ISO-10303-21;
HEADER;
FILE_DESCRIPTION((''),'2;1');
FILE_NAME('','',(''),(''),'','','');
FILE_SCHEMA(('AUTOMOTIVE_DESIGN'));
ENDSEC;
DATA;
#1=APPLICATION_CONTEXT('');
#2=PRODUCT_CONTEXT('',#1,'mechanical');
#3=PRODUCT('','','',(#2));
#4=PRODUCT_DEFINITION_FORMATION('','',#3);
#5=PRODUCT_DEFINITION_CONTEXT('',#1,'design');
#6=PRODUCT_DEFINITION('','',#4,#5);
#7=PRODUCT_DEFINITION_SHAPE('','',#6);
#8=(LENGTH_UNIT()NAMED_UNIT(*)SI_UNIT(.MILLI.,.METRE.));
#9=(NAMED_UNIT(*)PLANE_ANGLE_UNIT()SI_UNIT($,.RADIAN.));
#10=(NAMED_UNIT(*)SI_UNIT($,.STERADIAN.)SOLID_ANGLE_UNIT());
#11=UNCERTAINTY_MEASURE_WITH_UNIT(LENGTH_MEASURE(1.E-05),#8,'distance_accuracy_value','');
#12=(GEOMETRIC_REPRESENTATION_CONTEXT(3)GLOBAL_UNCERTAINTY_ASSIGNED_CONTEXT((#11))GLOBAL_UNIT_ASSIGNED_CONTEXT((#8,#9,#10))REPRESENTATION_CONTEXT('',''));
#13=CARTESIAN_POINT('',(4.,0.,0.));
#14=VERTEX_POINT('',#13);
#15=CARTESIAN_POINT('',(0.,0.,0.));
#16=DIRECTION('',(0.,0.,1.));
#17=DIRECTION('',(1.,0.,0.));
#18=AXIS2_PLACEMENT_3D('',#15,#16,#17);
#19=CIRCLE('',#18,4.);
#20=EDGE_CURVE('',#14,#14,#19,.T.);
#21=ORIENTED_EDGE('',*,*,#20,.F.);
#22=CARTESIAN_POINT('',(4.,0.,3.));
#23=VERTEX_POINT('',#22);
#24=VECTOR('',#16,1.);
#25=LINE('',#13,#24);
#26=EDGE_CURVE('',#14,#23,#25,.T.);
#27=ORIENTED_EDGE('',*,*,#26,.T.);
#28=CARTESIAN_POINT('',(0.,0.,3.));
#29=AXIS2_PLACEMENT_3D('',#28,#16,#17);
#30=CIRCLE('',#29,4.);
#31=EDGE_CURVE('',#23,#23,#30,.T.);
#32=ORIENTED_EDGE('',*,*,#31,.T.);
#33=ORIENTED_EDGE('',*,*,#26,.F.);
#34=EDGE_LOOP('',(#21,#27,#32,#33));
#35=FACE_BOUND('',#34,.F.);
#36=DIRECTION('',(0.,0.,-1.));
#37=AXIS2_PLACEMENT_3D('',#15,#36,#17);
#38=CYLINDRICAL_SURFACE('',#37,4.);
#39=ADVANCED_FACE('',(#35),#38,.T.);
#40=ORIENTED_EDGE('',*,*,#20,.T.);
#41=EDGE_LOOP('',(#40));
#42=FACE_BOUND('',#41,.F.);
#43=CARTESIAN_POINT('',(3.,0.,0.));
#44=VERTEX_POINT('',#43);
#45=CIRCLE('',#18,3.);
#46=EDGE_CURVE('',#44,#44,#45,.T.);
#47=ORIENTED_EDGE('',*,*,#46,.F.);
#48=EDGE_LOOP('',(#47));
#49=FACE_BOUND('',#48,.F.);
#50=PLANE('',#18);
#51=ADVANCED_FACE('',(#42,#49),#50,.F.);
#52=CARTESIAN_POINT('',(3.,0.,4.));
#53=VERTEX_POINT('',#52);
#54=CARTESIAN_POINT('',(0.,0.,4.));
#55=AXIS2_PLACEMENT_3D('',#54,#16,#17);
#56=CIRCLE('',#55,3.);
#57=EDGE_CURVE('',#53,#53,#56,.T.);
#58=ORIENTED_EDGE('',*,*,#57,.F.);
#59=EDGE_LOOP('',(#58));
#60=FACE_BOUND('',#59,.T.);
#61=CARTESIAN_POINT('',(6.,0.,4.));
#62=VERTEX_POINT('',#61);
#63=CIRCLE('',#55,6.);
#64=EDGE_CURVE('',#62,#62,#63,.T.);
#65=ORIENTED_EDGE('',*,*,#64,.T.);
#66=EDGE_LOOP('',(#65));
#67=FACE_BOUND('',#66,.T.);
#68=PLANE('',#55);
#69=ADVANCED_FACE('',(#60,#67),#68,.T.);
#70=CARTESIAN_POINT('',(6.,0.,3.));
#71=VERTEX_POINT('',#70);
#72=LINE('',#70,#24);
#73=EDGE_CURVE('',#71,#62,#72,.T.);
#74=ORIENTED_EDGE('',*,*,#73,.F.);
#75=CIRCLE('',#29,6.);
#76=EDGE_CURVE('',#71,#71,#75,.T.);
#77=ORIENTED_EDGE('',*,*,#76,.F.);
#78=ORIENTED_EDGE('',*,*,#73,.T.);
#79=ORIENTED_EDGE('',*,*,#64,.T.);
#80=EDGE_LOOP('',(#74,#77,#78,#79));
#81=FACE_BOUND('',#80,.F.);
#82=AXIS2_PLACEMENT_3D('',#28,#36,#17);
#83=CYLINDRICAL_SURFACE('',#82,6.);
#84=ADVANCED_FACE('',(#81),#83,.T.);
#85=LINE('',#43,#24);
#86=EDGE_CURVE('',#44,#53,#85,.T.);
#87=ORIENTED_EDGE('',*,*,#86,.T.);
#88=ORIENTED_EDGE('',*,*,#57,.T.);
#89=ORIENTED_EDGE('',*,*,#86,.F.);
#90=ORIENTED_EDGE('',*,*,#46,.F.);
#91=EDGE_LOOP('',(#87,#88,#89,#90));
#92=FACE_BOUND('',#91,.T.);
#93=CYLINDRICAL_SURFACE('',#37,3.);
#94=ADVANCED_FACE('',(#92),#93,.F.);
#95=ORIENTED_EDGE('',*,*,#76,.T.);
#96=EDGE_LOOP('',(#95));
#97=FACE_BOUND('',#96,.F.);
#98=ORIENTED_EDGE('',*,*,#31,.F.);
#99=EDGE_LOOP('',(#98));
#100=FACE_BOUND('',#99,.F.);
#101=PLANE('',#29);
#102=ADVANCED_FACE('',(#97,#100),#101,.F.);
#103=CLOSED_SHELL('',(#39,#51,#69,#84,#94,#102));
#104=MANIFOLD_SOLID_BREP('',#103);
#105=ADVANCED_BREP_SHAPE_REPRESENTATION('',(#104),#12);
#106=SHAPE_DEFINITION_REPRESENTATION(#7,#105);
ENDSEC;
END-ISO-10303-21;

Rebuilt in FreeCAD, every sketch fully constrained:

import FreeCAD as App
import Part
import Sketcher
Q = App.Units.Quantity

doc = App.newDocument("Part")
body = doc.addObject("PartDesign::Body", "Body")

# Sketch on XY plane
sketch1 = body.newObject("Sketcher::SketchObject", "Sketch")
sketch1.AttachmentSupport = (doc.getObject("XY_Plane"), [""])
sketch1.MapMode = "FlatFace"
sketch1.addGeometry(Part.Circle(App.Vector(0, 0, 0), App.Vector(0, 0, 1), 4), False)
sketch1.addGeometry(Part.Circle(App.Vector(0, 0, 0), App.Vector(0, 0, 1), 3), False)
sketch1.addConstraint(Sketcher.Constraint("Coincident", 0, 3, -1, 1))
sketch1.addConstraint(Sketcher.Constraint("Coincident", 1, 3, -1, 1))
sketch1.addConstraint(Sketcher.Constraint("Diameter", 0, Q("8 mm")))
sketch1.addConstraint(Sketcher.Constraint("Diameter", 1, Q("6 mm")))
pad1 = body.newObject("PartDesign::Pad", "Pad")
pad1.Profile = sketch1
pad1.Length = 3

# Sketch on XY plane
sketch2 = body.newObject("Sketcher::SketchObject", "Sketch001")
sketch2.AttachmentSupport = (doc.getObject("XY_Plane"), [""])
sketch2.MapMode = "FlatFace"
sketch2.AttachmentOffset = App.Placement(App.Vector(0, 0, 3), App.Rotation())
sketch2.addGeometry(Part.Circle(App.Vector(0, 0, 0), App.Vector(0, 0, 1), 6), False)
sketch2.addGeometry(Part.Circle(App.Vector(0, 0, 0), App.Vector(0, 0, 1), 3), False)
sketch2.addConstraint(Sketcher.Constraint("Coincident", 0, 3, -1, 1))
sketch2.addConstraint(Sketcher.Constraint("Coincident", 1, 3, -1, 1))
sketch2.addConstraint(Sketcher.Constraint("Diameter", 0, Q("12 mm")))
sketch2.addConstraint(Sketcher.Constraint("Diameter", 1, Q("6 mm")))
pad2 = body.newObject("PartDesign::Pad", "Pad001")
pad2.Profile = sketch2
pad2.Length = 1

doc.recompute()
